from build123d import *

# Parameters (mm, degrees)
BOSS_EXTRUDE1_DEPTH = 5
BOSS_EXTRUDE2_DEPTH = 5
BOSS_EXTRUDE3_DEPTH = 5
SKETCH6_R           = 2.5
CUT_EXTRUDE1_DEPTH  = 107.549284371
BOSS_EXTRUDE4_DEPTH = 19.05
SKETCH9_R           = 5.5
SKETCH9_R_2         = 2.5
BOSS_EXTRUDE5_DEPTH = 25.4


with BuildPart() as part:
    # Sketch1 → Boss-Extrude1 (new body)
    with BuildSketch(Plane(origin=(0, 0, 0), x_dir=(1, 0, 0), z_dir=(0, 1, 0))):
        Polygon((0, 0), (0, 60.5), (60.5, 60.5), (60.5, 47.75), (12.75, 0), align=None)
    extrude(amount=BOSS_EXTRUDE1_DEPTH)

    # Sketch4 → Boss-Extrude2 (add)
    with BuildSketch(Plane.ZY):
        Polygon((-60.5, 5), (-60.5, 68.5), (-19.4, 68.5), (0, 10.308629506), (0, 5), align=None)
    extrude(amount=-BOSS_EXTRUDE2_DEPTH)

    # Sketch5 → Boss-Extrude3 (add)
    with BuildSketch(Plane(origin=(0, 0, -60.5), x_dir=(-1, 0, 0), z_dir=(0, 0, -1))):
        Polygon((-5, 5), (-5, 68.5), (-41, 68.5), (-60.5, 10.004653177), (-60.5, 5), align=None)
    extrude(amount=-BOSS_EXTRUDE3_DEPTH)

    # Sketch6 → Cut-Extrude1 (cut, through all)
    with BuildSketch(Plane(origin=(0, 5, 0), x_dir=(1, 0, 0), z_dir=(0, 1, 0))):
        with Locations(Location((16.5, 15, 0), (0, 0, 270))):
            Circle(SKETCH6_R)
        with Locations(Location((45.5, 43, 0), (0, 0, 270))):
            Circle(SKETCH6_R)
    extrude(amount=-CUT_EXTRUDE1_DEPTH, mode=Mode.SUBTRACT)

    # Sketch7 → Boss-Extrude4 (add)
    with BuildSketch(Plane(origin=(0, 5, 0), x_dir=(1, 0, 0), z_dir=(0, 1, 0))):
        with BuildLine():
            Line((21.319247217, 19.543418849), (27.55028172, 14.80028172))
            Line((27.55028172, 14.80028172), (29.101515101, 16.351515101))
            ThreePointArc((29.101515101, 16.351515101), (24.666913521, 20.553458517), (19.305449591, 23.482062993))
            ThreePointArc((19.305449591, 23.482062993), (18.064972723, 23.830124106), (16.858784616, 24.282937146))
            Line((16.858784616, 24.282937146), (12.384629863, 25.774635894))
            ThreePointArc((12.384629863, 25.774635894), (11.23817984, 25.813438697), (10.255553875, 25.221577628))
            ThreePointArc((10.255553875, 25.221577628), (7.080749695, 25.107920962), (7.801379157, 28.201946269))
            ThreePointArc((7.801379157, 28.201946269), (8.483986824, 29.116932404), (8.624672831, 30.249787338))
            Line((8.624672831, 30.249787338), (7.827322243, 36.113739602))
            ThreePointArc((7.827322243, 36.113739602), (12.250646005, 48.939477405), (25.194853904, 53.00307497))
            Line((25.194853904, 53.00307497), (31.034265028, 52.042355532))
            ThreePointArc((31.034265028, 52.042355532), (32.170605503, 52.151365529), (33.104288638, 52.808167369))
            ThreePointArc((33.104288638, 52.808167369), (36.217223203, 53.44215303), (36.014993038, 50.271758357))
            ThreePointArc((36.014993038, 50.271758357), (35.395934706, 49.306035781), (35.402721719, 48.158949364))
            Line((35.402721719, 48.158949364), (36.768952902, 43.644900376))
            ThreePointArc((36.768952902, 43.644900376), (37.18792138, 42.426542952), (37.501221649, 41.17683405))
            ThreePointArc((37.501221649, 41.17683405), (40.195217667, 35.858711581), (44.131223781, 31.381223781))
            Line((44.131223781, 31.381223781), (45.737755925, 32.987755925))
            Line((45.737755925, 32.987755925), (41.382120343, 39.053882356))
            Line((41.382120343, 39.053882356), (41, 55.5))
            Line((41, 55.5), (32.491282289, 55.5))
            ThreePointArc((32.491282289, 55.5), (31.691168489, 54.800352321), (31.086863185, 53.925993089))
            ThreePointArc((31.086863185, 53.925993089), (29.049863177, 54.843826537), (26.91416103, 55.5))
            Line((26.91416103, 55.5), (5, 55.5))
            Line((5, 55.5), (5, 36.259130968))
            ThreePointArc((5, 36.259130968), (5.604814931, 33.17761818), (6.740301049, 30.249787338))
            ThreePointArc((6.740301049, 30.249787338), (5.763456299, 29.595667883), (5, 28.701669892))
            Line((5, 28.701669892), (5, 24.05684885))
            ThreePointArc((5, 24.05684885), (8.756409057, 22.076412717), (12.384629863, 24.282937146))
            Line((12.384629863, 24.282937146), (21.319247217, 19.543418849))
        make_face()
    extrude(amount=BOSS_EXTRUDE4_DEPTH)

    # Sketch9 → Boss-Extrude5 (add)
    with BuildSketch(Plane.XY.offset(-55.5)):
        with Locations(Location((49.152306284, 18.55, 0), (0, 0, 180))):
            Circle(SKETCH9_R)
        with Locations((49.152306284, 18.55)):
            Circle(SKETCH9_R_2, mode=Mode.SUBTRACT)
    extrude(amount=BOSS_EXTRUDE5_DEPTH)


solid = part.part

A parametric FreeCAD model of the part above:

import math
import FreeCAD as App
import Part
import Sketcher

V = App.Vector
Q = App.Units.Quantity

doc = App.newDocument("Part")
body = doc.addObject("PartDesign::Body", "Body")

sketch1 = body.newObject("Sketcher::SketchObject", "Sketch")
sketch1.AttachmentSupport = (doc.getObject("XZ_Plane"), [""])
sketch1.MapMode = "FlatFace"
sketch1.addGeometry([
    Part.LineSegment(V(0, -60, 0), V(0, 0, 0)),
    Part.LineSegment(V(0, 0, 0), V(13, 0, 0)),
    Part.LineSegment(V(13, 0, 0), V(60, -48, 0)),
    Part.LineSegment(V(60, -48, 0), V(60, -60, 0)),
    Part.LineSegment(V(60, -60, 0), V(0, -60, 0)),
], False)
sketch1.addConstraint([
    Sketcher.Constraint("Coincident", 0, 2, 1, 1),
    Sketcher.Constraint("Coincident", 1, 2, 2, 1),
    Sketcher.Constraint("Coincident", 2, 2, 3, 1),
    Sketcher.Constraint("Coincident", 3, 2, 4, 1),
    Sketcher.Constraint("Coincident", 4, 2, 0, 1),
    Sketcher.Constraint("Vertical", 0),
    Sketcher.Constraint("Horizontal", 1),
    Sketcher.Constraint("Vertical", 3),
    Sketcher.Constraint("Horizontal", 4),
    Sketcher.Constraint("Coincident", 0, 2, -1, 1),
    Sketcher.Constraint("Equal", 4, 0),
    Sketcher.Constraint("Equal", 1, 3),
    Sketcher.Constraint("DistanceX", 4, 2, 4, 1, 60.5),
    Sketcher.Constraint("DistanceX", 1, 1, 1, 2, 12.75),
])
pad1 = body.newObject("PartDesign::Pad", "Pad")
pad1.Profile = sketch1
pad1.Length = 5
pad1.Reversed = True

sketch2 = body.newObject("Sketcher::SketchObject", "Sketch001")
sketch2.AttachmentSupport = (doc.getObject("YZ_Plane"), [""])
sketch2.MapMode = "FlatFace"
sketch2.addGeometry([
    Part.LineSegment(V(68, -60, 0), V(5, -60, 0)),
    Part.LineSegment(V(5, -60, 0), V(5, 0, 0)),
    Part.LineSegment(V(5, 0, 0), V(10, 0, 0)),
    Part.LineSegment(V(10, 0, 0), V(68, -19, 0)),
    Part.LineSegment(V(68, -19, 0), V(68, -60, 0)),
], False)
sketch2.addConstraint([
    Sketcher.Constraint("Coincident", 0, 2, 1, 1),
    Sketcher.Constraint("Coincident", 1, 2, 2, 1),
    Sketcher.Constraint("Coincident", 2, 2, 3, 1),
    Sketcher.Constraint("Coincident", 3, 2, 4, 1),
    Sketcher.Constraint("Coincident", 4, 2, 0, 1),
    Sketcher.Constraint("Horizontal", 0),
    Sketcher.Constraint("Vertical", 1),
    Sketcher.Constraint("Horizontal", 2),
    Sketcher.Constraint("Vertical", 4),
    Sketcher.Constraint("PointOnObject", 1, 2, -1),
    Sketcher.Constraint("DistanceX", 0, 2, 0, 1, 63.5),
    Sketcher.Constraint("DistanceY", 1, 1, 1, 2, 60.5),
    Sketcher.Constraint("DistanceY", 4, 2, 4, 1, 41.1),
    Sketcher.Constraint("DistanceX", -1, 1, 0, 2, 5.0),
    Sketcher.Constraint("Distance", 3, 61.34),
])
pad2 = body.newObject("PartDesign::Pad", "Pad001")
pad2.Profile = sketch2
pad2.Length = 5

sketch3 = body.newObject("Sketcher::SketchObject", "Sketch002")
sketch3.AttachmentSupport = (doc.getObject("XY_Plane"), [""])
sketch3.MapMode = "FlatFace"
sketch3.AttachmentOffset = App.Placement(V(0, 0, -60.5), App.Rotation())
sketch3.addGeometry([
    Part.LineSegment(V(5, 5, 0), V(5, 68, 0)),
    Part.LineSegment(V(5, 68, 0), V(41, 68, 0)),
    Part.LineSegment(V(41, 68, 0), V(60, 10, 0)),
    Part.LineSegment(V(60, 10, 0), V(60, 5, 0)),
    Part.LineSegment(V(60, 5, 0), V(5, 5, 0)),
], False)
sketch3.addConstraint([
    Sketcher.Constraint("Coincident", 0, 2, 1, 1),
    Sketcher.Constraint("Coincident", 1, 2, 2, 1),
    Sketcher.Constraint("Coincident", 2, 2, 3, 1),
    Sketcher.Constraint("Coincident", 3, 2, 4, 1),
    Sketcher.Constraint("Coincident", 4, 2, 0, 1),
    Sketcher.Constraint("Vertical", 0),
    Sketcher.Constraint("Horizontal", 1),
    Sketcher.Constraint("Vertical", 3),
    Sketcher.Constraint("Horizontal", 4),
    Sketcher.Constraint("DistanceX", 1, 1, 1, 2, 36.0),
    Sketcher.Constraint("DistanceX", 4, 2, 4, 1, 55.5),
    Sketcher.Constraint("DistanceY", 0, 1, 0, 2, 63.5),
    Sketcher.Constraint("DistanceX", -1, 1, 0, 2, 5.0),
    Sketcher.Constraint("DistanceY", -1, 1, 3, 2, 5.0),
    Sketcher.Constraint("Distance", 2, 61.66),
])
pad3 = body.newObject("PartDesign::Pad", "Pad002")
pad3.Profile = sketch3
pad3.Length = 5

sketch4 = body.newObject("Sketcher::SketchObject", "Sketch003")
sketch4.AttachmentSupport = (doc.getObject("XZ_Plane"), [""])
sketch4.MapMode = "FlatFace"
sketch4.AttachmentOffset = App.Placement(V(0, 0, -5), App.Rotation())
sketch4.addGeometry([
    Part.Circle(V(16.5, -15, 0), V(0, 0, 1), 2.5),
    Part.Circle(V(45.5, -43, 0), V(0, 0, 1), 2.5),
], False)
sketch4.addConstraint([
    Sketcher.Constraint("Equal", 0, 1),
    Sketcher.Constraint("Diameter", 0, 5.0),
    Sketcher.Constraint("DistanceY", 0, 3, -1, 1, 15.0),
    Sketcher.Constraint("DistanceY", 1, 3, -1, 1, 43.0),
    Sketcher.Constraint("DistanceX", 0, 3, 1, 3, 29.0),
    Sketcher.Constraint("DistanceX", -1, 1, 0, 3, 16.5),
])
pocket1 = body.newObject("PartDesign::Pocket", "Pocket")
pocket1.Profile = sketch4
pocket1.Type = "ThroughAll"
pocket1.Reversed = True

sketch5 = body.newObject("Sketcher::SketchObject", "Sketch004")
sketch5.AttachmentSupport = (doc.getObject("XZ_Plane"), [""])
sketch5.MapMode = "FlatFace"
sketch5.AttachmentOffset = App.Placement(V(0, 0, -5), App.Rotation())
sketch5.addGeometry([
    Part.LineSegment(V(21.3, -19.5, 0), V(27.6, -14.8, 0)),
    Part.LineSegment(V(27.6, -14.8, 0), V(29.1, -16.4, 0)),
    Part.ArcOfCircle(Part.Circle(V(10.7, -1.4, 0), V(0, 0, 1), 23.7), math.radians(-69), math.radians(-39)),
    Part.ArcOfCircle(Part.Circle(V(22.8, -38.1, 0), V(0, 0, 1), 15.1), math.radians(103.22), math.radians(113.03)),
    Part.LineSegment(V(16.9, -24.3, 0), V(12.4, -25.8, 0)),
    Part.ArcOfCircle(Part.Circle(V(11.7, -23.9, 0), V(0, 0, 1), 2), math.radians(-138), math.radians(-72)),
    Part.ArcOfCircle(Part.Circle(V(8.6, -26.4, 0), V(0, 0, 1), 2), math.radians(35), math.radians(246)),
    Part.ArcOfCircle(Part.Circle(V(6.4, -29.9, 0), V(0, 0, 1), 2.2), math.radians(-8), math.radians(52)),
    Part.LineSegment(V(8.6, -30.2, 0), V(7.8, -36.1, 0)),
    Part.ArcOfCircle(Part.Circle(V(22.8, -38.1, 0), V(0, 0, 1), 15.1), math.radians(172), math.radians(279)),
    Part.LineSegment(V(25.2, -53, 0), V(31, -52, 0)),
    Part.ArcOfCircle(Part.Circle(V(31.4, -54.2, 0), V(0, 0, 1), 2.2), math.radians(40), math.radians(99)),
    Part.ArcOfCircle(Part.Circle(V(34.9, -51.9, 0), V(0, 0, 1), 2), math.radians(-154), math.radians(56)),
    Part.ArcOfCircle(Part.Circle(V(37.3, -48.7, 0), V(0, 0, 1), 2), math.radians(163), math.radians(229)),
    Part.LineSegment(V(35.4, -48.2, 0), V(36.8, -43.6, 0)),
    Part.ArcOfCircle(Part.Circle(V(22.8, -38.1, 0), V(0, 0, 1), 15.1), math.radians(-21.43), math.radians(-11.62)),
    Part.ArcOfCircle(Part.Circle(V(59.8, -49.1, 0), V(0, 0, 1), 23.7), math.radians(131), math.radians(160)),
    Part.LineSegment(V(44.1, -31.4, 0), V(45.7, -33, 0)),
    Part.LineSegment(V(45.7, -33, 0), V(41.4, -39.1, 0)),
    Part.LineSegment(V(41.4, -39.1, 0), V(41, -55.5, 0)),
    Part.LineSegment(V(41, -55.5, 0), V(32.5, -55.5, 0)),
    Part.ArcOfCircle(Part.Circle(V(34.9, -51.9, 0), V(0, 0, 1), 4.3), math.radians(-152), math.radians(-124)),
    Part.ArcOfCircle(Part.Circle(V(22.7, -38.1, 0), V(0, 0, 1), 17.8), math.radians(-76.51), math.radians(-62.16)),
    Part.LineSegment(V(26.9, -55.5, 0), V(5, -55.5, 0)),
    Part.LineSegment(V(5, -55.5, 0), V(5, -36.3, 0)),
    Part.ArcOfCircle(Part.Circle(V(22.7, -38.1, 0), V(0, 0, 1), 17.8), math.radians(154), math.radians(174)),
    Part.ArcOfCircle(Part.Circle(V(8.6, -26.4, 0), V(0, 0, 1), 4.3), math.radians(-147), math.radians(-116)),
    Part.LineSegment(V(5, -28.7, 0), V(5, -24.1, 0)),
    Part.ArcOfCircle(Part.Circle(V(8.6, -26.4, 0), V(0, 0, 1), 4.3), math.radians(29), math.radians(147)),
    Part.LineSegment(V(12.4, -24.3, 0), V(21.3, -19.5, 0)),
], False)
sketch5.addConstraint([
    Sketcher.Constraint("Coincident", 0, 2, 1, 1),
    Sketcher.Constraint("Coincident", 1, 2, 2, 2),
    Sketcher.Constraint("Coincident", 2, 1, 3, 1),
    Sketcher.Constraint("Coincident", 3, 2, 4, 1),
    Sketcher.Constraint("Tangent", 4, 2, 5, 2),
    Sketcher.Constraint("Coincident", 5, 1, 6, 1),
    Sketcher.Constraint("Coincident", 6, 2, 7, 2),
    Sketcher.Constraint("Tangent", 7, 1, 8, 1),
    Sketcher.Constraint("Tangent", 8, 2, 9, 1),
    Sketcher.Constraint("Tangent", 9, 2, 10, 1),
    Sketcher.Constraint("Tangent", 10, 2, 11, 2),
    Sketcher.Constraint("Coincident", 11, 1, 12, 1),
    Sketcher.Constraint("Coincident", 12, 2, 13, 2),
    Sketcher.Constraint("Tangent", 13, 1, 14, 1),
    Sketcher.Constraint("Coincident", 14, 2, 15, 1),
    Sketcher.Constraint("Coincident", 15, 2, 16, 2),
    Sketcher.Constraint("Coincident", 16, 1, 17, 1),
    Sketcher.Constraint("Coincident", 17, 2, 18, 1),
    Sketcher.Constraint("Coincident", 18, 2, 19, 1),
    Sketcher.Constraint("Coincident", 19, 2, 20, 1),
    Sketcher.Constraint("Coincident", 20, 2, 21, 2),
    Sketcher.Constraint("Coincident", 21, 1, 22, 2),
    Sketcher.Constraint("Coincident", 22, 1, 23, 1),
    Sketcher.Constraint("Coincident", 23, 2, 24, 1),
    Sketcher.Constraint("Coincident", 24, 2, 25, 2),
    Sketcher.Constraint("Coincident", 25, 1, 26, 2),
    Sketcher.Constraint("Coincident", 26, 1, 27, 1),
    Sketcher.Constraint("Coincident", 27, 2, 28, 2),
    Sketcher.Constraint("Coincident", 28, 1, 29, 1),
    Sketcher.Constraint("Coincident", 29, 2, 0, 1),
    Sketcher.Constraint("Horizontal", 20),
    Sketcher.Constraint("Horizontal", 23),
    Sketcher.Constraint("Vertical", 24),
    Sketcher.Constraint("Vertical", 27),
    Sketcher.Constraint("Coincident", 9, 3, 3, 3),
    Sketcher.Constraint("Coincident", 15, 3, 3, 3),
    Sketcher.Constraint("Coincident", 21, 3, 12, 3),
    Sketcher.Constraint("Coincident", 22, 3, 3, 3),
    Sketcher.Constraint("Coincident", 25, 3, 3, 3),
    Sketcher.Constraint("Coincident", 26, 3, 6, 3),
    Sketcher.Constraint("Coincident", 28, 3, 6, 3),
    Sketcher.Constraint("Equal", 3, 9),
    Sketcher.Constraint("Equal", 7, 11),
    Sketcher.Constraint("Equal", 6, 12),
    Sketcher.Constraint("Equal", 5, 13),
    Sketcher.Constraint("Equal", 9, 15),
    Sketcher.Constraint("Equal", 2, 16),
    Sketcher.Constraint("Equal", 22, 25),
    Sketcher.Constraint("Equal", 21, 26),
    Sketcher.Constraint("Equal", 26, 28),
    Sketcher.Constraint("Parallel", 1, 17),
    Sketcher.Constraint("Horizontal", 20, 2, 22, 1),
    Sketcher.Constraint("Horizontal", 7, 1, 25, 1),
    Sketcher.Constraint("Horizontal", 3, 2, 28, 1),
    Sketcher.Constraint("Vertical", 28, 3, 7, 1),
    Sketcher.Constraint("Vertical", 24, 2, 26, 1),
    Sketcher.Constraint("Vertical", 4, 2, 28, 1),
    Sketcher.Constraint("Equal", 8, 10),
    Sketcher.Constraint("Equal", 4, 14),
    Sketcher.Constraint("Radius", 6, 2.0),
    Sketcher.Constraint("Angle", 1, Q("-45 deg")),
    Sketcher.Constraint("Radius", 3, 15.06),
    Sketcher.Constraint("DistanceX", -1, 1, 19, 2, 41.0),
    Sketcher.Constraint("DistanceX", -1, 1, 23, 2, 5.0),
    Sketcher.Constraint("DistanceY", 19, 2, -1, 1, 55.5),
    Sketcher.Constraint("DistanceX", -1, 1, 3, 3, 22.75),
    Sketcher.Constraint("Radius", 2, 23.69728),
    Sketcher.Constraint("Radius", 5, 2.019436),
    Sketcher.Constraint("Radius", 7, 2.231132),
    Sketcher.Constraint("Radius", 21, 4.304863),
    Sketcher.Constraint("Radius", 22, 17.849675),
    Sketcher.Constraint("DistanceY", 13, 3, 13, 1, 0.584999),
    Sketcher.Constraint("DistanceX", 23, 2, 23, 1, 21.914161),
    Sketcher.Constraint("DistanceY", 27, 1, 27, 2, 4.644821),
    Sketcher.Constraint("DistanceY", 14, 2, -1, 1, 43.6449),
    Sketcher.Constraint("DistanceX", -1, 1, 25, 1, 6.740301),
    Sketcher.Constraint("DistanceX", 7, 3, 12, 3, 28.4894),
    Sketcher.Constraint("DistanceX", 11, 3, 13, 3, 5.9391),
    Sketcher.Constraint("DistanceY", 13, 3, 3, 3, 10.601099),
    Sketcher.Constraint("DistanceY", 4, 2, 3, 2, 1.491699),
    Sketcher.Constraint("DistanceX", 13, 1, 15, 2, 2.0985),
    Sketcher.Constraint("DistanceX", 15, 2, 18, 2, 3.880899),
    Sketcher.Constraint("DistanceX", 10, 2, 21, 1, 0.052598),
    Sketcher.Constraint("Distance", 0, 7.830909),
    Sketcher.Constraint("Distance", 17, 2.27198),
    Sketcher.Constraint("DistanceX", -1, 1, 16, 3, 59.819972),
    Sketcher.Constraint("DistanceX", -1, 1, 0, 2, 27.550282),
    Sketcher.Constraint("DistanceY", 0, 2, -1, 1, 14.800282),
    Sketcher.Constraint("DistanceX", -1, 1, 2, 1, 19.30545),
    Sketcher.Constraint("DistanceY", 29, 2, -1, 1, 19.543419),
    Sketcher.Constraint("DistanceX", 7, 3, 2, 3, 4.30711),
    Sketcher.Constraint("DistanceY", 15, 2, 16, 1, 9.79561),
    Sketcher.Constraint("DistanceY", 15, 2, 18, 2, 2.122952),
])
pad4 = body.newObject("PartDesign::Pad", "Pad003")
pad4.Profile = sketch5
pad4.Length = 19.05
pad4.Reversed = True

sketch6 = body.newObject("Sketcher::SketchObject", "Sketch005")
sketch6.AttachmentSupport = (doc.getObject("XY_Plane"), [""])
sketch6.MapMode = "FlatFace"
sketch6.AttachmentOffset = App.Placement(V(0, 0, -55.5), App.Rotation())
sketch6.addGeometry([
    Part.Circle(V(49.2, 18.6, 0), V(0, 0, 1), 5.5),
    Part.Circle(V(49.2, 18.6, 0), V(0, 0, 1), 2.5),
], False)
sketch6.addConstraint([
    Sketcher.Constraint("Coincident", 1, 3, 0, 3),
    Sketcher.Constraint("Diameter", 0, 11.0),
    Sketcher.Constraint("Diameter", 1, 5.0),
    Sketcher.Constraint("DistanceY", -1, 1, 0, 3, 18.55),
    Sketcher.Constraint("DistanceX", -1, 1, 0, 3, 49.152306),
])
pad5 = body.newObject("PartDesign::Pad", "Pad004")
pad5.Profile = sketch6
pad5.Length = 25.4

doc.recompute()
